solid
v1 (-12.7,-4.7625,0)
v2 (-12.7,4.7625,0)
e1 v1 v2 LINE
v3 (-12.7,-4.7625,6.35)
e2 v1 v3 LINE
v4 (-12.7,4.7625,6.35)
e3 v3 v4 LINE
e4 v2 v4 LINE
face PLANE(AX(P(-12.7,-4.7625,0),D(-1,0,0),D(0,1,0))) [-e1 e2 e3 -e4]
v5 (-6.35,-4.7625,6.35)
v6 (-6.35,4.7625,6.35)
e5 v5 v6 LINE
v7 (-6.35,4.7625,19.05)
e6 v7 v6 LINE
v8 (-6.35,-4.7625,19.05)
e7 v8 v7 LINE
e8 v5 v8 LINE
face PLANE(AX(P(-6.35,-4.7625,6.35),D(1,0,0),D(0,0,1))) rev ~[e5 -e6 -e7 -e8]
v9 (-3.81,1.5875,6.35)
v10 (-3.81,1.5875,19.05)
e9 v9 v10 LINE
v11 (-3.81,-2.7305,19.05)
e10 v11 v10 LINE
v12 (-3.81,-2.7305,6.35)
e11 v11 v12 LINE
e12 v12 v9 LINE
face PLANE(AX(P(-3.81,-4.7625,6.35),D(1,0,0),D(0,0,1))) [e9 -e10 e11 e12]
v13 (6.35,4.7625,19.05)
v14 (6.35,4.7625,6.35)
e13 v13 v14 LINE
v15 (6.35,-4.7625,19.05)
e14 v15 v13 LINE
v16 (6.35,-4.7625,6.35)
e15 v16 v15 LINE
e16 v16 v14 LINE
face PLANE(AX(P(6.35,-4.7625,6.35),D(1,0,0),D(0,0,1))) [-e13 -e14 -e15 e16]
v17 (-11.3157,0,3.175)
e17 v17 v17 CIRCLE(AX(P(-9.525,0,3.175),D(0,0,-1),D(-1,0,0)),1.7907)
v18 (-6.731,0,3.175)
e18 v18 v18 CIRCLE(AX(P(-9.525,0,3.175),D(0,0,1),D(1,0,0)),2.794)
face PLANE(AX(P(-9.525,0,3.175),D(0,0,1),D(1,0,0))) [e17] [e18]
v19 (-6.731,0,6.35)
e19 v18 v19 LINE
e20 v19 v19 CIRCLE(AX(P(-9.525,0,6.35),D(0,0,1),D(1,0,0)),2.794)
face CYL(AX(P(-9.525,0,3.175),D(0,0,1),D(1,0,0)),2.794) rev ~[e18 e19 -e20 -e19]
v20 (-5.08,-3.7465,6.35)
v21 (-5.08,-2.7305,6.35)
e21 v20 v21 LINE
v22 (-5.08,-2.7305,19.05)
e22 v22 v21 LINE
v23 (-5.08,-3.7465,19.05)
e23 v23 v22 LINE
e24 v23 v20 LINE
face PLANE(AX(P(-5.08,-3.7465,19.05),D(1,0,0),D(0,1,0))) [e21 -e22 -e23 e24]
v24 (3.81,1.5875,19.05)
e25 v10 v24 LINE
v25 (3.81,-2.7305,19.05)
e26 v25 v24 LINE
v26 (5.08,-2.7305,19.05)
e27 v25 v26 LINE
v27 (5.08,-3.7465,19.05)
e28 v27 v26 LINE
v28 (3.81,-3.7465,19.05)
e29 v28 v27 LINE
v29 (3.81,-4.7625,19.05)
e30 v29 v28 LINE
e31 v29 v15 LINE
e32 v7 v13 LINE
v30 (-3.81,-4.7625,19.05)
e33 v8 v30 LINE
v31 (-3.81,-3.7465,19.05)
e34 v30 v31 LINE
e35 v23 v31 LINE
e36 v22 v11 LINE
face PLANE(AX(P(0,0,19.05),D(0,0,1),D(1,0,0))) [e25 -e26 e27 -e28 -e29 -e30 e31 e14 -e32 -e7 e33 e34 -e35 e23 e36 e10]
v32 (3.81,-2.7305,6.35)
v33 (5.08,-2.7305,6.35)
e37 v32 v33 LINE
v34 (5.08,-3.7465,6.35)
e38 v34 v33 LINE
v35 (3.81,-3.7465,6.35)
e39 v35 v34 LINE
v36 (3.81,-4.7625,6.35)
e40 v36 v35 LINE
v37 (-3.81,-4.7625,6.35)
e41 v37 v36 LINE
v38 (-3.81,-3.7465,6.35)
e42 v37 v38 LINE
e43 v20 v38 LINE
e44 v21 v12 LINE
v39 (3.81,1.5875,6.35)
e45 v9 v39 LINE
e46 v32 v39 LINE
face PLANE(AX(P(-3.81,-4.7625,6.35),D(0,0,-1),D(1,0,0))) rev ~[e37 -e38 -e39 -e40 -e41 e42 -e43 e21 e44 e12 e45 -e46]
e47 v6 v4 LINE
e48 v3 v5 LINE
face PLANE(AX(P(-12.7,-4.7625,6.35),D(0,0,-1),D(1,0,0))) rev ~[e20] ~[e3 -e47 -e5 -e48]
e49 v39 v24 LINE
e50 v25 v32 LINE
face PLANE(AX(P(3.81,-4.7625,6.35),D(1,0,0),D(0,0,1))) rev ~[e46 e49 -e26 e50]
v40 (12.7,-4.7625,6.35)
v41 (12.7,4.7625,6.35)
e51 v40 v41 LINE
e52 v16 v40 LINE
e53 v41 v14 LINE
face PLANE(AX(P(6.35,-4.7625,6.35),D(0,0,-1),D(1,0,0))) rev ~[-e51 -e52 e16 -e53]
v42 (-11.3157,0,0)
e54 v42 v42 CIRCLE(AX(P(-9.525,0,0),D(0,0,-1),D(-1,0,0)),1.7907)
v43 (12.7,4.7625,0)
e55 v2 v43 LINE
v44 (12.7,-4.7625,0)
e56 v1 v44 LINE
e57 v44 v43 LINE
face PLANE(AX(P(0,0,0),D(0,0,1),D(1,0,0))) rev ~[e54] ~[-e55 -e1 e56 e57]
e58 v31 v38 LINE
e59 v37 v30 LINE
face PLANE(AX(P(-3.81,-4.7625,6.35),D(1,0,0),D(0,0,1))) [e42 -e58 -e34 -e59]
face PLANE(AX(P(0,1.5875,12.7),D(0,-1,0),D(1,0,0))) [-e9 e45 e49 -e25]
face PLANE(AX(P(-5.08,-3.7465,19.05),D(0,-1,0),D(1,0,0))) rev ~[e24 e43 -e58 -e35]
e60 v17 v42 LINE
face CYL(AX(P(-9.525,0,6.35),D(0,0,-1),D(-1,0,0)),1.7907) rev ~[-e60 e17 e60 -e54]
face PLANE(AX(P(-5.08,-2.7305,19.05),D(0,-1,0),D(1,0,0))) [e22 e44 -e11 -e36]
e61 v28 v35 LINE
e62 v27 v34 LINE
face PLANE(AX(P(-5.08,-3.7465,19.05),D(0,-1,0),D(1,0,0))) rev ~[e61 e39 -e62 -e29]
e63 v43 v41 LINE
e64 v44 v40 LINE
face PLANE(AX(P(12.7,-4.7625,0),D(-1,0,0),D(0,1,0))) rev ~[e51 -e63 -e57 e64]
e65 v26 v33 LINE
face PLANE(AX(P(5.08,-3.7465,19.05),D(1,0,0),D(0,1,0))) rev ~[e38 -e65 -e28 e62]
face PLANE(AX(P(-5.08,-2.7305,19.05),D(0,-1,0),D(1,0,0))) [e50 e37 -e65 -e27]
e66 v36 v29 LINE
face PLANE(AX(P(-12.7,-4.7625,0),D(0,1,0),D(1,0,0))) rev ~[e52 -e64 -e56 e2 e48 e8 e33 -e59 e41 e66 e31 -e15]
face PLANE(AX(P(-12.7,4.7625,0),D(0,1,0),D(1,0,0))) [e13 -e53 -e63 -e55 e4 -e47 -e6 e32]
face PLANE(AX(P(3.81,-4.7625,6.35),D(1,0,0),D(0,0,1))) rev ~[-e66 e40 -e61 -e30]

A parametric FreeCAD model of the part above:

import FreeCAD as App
import Part
import Sketcher
Q = App.Units.Quantity

doc = App.newDocument("Part")
params = doc.addObject("Spreadsheet::Sheet", "Params")
for row, (alias, value) in enumerate([
    ("sketch1_width", "1 in"),
    ("sketch1_height", "0.375 in"),
    ("pad1_length", "0.75 in"),
    ("sketch2_height", "0.5 in"),
    ("sketch2_width", "0.25 in"),
    ("pocket1_length", "1 in"),
    ("sketch3_diameter", "0.141 in"),
    ("hole_diameter", "0.141 in"),
    ("hole_depth", "0.265 in"),
    ("hole_cbore_diameter", "0.22 in"),
    ("hole_cbore_depth", "0.125 in"),
    ("sketch4_width", "0.3 in"),
    ("sketch4_height", "0.5 in"),
    ("pocket2_length", "0.25 in"),
    ("sketch5_width", "0.4 in"),
    ("sketch5_height", "0.04 in"),
    ("pocket3_length", "0.5 in"),
], start=1):
    params.set(f"A{row}", alias)
    params.set(f"B{row}", "=" + value)
    params.setAlias(f"B{row}", alias)

body = doc.addObject("PartDesign::Body", "Body")

sketch1 = body.newObject("Sketcher::SketchObject", "Sketch")
sketch1.AttachmentSupport = (doc.getObject("XY_Plane"), [""])
sketch1.MapMode = "FlatFace"
sketch1.addGeometry(Part.LineSegment(App.Vector(-13, 5, 0), App.Vector(-13, -5, 0)), False)
sketch1.addGeometry(Part.LineSegment(App.Vector(-13, -5, 0), App.Vector(13, -5, 0)), False)
sketch1.addGeometry(Part.LineSegment(App.Vector(13, -5, 0), App.Vector(13, 5, 0)), False)
sketch1.addGeometry(Part.LineSegment(App.Vector(13, 5, 0), App.Vector(-13, 5, 0)), False)
sketch1.addConstraint(Sketcher.Constraint("Coincident", 0, 2, 1, 1))
sketch1.addConstraint(Sketcher.Constraint("Coincident", 1, 2, 2, 1))
sketch1.addConstraint(Sketcher.Constraint("Coincident", 2, 2, 3, 1))
sketch1.addConstraint(Sketcher.Constraint("Coincident", 3, 2, 0, 1))
sketch1.addConstraint(Sketcher.Constraint("Vertical", 0))
sketch1.addConstraint(Sketcher.Constraint("Horizontal", 1))
sketch1.addConstraint(Sketcher.Constraint("Vertical", 2))
sketch1.addConstraint(Sketcher.Constraint("Horizontal", 3))
sketch1.addConstraint(Sketcher.Constraint("Symmetric", 0, 2, 2, 2, -1, 1))
sketch1.addConstraint(Sketcher.Constraint("DistanceX", 1, 1, 1, 2, Q("1 in")))
sketch1.addConstraint(Sketcher.Constraint("DistanceY", 0, 2, 0, 1, Q("0.375 in")))
sketch1.setExpression("Constraints[9]", "Params.sketch1_width")
sketch1.setExpression("Constraints[10]", "Params.sketch1_height")
pad1 = body.newObject("PartDesign::Pad", "Pad")
pad1.Profile = sketch1
pad1.setExpression("Length", "Params.pad1_length")

sketch2 = body.newObject("Sketcher::SketchObject", "Sketch001")
sketch2.AttachmentSupport = (doc.getObject("XZ_Plane"), [""])
sketch2.MapMode = "FlatFace"
sketch2.AttachmentOffset = App.Placement(App.Vector(0, 0, 0.1875 * 25.4), App.Rotation())
sketch2.addGeometry(Part.LineSegment(App.Vector(-13, 19, 0), App.Vector(-13, 6, 0)), False)
sketch2.addGeometry(Part.LineSegment(App.Vector(-13, 6, 0), App.Vector(-6, 6, 0)), False)
sketch2.addGeometry(Part.LineSegment(App.Vector(-6, 6, 0), App.Vector(-6, 19, 0)), False)
sketch2.addGeometry(Part.LineSegment(App.Vector(-6, 19, 0), App.Vector(-13, 19, 0)), False)
sketch2.addGeometry(Part.LineSegment(App.Vector(6, 19, 0), App.Vector(6, 6, 0)), False)
sketch2.addGeometry(Part.LineSegment(App.Vector(6, 6, 0), App.Vector(13, 6, 0)), False)
sketch2.addGeometry(Part.LineSegment(App.Vector(13, 6, 0), App.Vector(13, 19, 0)), False)
sketch2.addGeometry(Part.LineSegment(App.Vector(13, 19, 0), App.Vector(6, 19, 0)), False)
sketch2.addConstraint(Sketcher.Constraint("Coincident", 0, 2, 1, 1))
sketch2.addConstraint(Sketcher.Constraint("Coincident", 1, 2, 2, 1))
sketch2.addConstraint(Sketcher.Constraint("Coincident", 2, 2, 3, 1))
sketch2.addConstraint(Sketcher.Constraint("Coincident", 3, 2, 0, 1))
sketch2.addConstraint(Sketcher.Constraint("Coincident", 4, 2, 5, 1))
sketch2.addConstraint(Sketcher.Constraint("Coincident", 5, 2, 6, 1))
sketch2.addConstraint(Sketcher.Constraint("Coincident", 6, 2, 7, 1))
sketch2.addConstraint(Sketcher.Constraint("Coincident", 7, 2, 4, 1))
sketch2.addConstraint(Sketcher.Constraint("Vertical", 0))
sketch2.addConstraint(Sketcher.Constraint("Horizontal", 1))
sketch2.addConstraint(Sketcher.Constraint("Vertical", 2))
sketch2.addConstraint(Sketcher.Constraint("Horizontal", 3))
sketch2.addConstraint(Sketcher.Constraint("Vertical", 4))
sketch2.addConstraint(Sketcher.Constraint("Horizontal", 5))
sketch2.addConstraint(Sketcher.Constraint("Vertical", 6))
sketch2.addConstraint(Sketcher.Constraint("Horizontal", 7))
sketch2.addConstraint(Sketcher.Constraint("Symmetric", 1, 2, 4, 2, -2))
sketch2.addConstraint(Sketcher.Constraint("Symmetric", 3, 2, 6, 2, -2))
sketch2.addConstraint(Sketcher.Constraint("DistanceY", 0, 2, 0, 1, Q("0.5 in")))
sketch2.addConstraint(Sketcher.Constraint("DistanceX", 0, 2, 5, 2, Q("1 in")))
sketch2.addConstraint(Sketcher.Constraint("DistanceX", 1, 1, 1, 2, Q("0.25 in")))
sketch2.addConstraint(Sketcher.Constraint("DistanceY", -1, 1, 0, 2, Q("0.25 in")))
sketch2.setExpression("Constraints[18]", "Params.sketch2_height")
sketch2.setExpression("Constraints[20]", "Params.sketch2_width")
pocket1 = body.newObject("PartDesign::Pocket", "Pocket")
pocket1.Profile = sketch2
pocket1.setExpression("Length", "Params.pocket1_length")

sketch3 = body.newObject("Sketcher::SketchObject", "Sketch002")
sketch3.AttachmentSupport = (doc.getObject("XY_Plane"), [""])
sketch3.MapMode = "FlatFace"
sketch3.AttachmentOffset = App.Placement(App.Vector(0, 0, 0.25 * 25.4), App.Rotation())
sketch3.addGeometry(Part.Circle(App.Vector(-9.5, 0, 0), App.Vector(0, 0, 1), 1.8), False)
sketch3.addConstraint(Sketcher.Constraint("PointOnObject", 0, 3, -1))
sketch3.addConstraint(Sketcher.Constraint("Diameter", 0, Q("0.141 in")))
sketch3.addConstraint(Sketcher.Constraint("DistanceX", 0, 3, -1, 1, Q("0.375 in")))
sketch3.setExpression("Constraints[1]", "Params.sketch3_diameter")
doc.recompute()
hole = body.newObject("PartDesign::Hole", "Hole")
hole.Profile = sketch3
hole.ThreadType = "None"
hole.setExpression("Diameter", "Params.hole_diameter")
hole.DepthType = "Dimension"
hole.setExpression("Depth", "Params.hole_depth")
hole.DrillPoint = "Flat"
hole.HoleCutType = "Counterbore"
hole.setExpression("HoleCutDiameter", "Params.hole_cbore_diameter")
hole.setExpression("HoleCutDepth", "Params.hole_cbore_depth")

sketch4 = body.newObject("Sketcher::SketchObject", "Sketch003")
sketch4.AttachmentSupport = (doc.getObject("XZ_Plane"), [""])
sketch4.MapMode = "FlatFace"
sketch4.AttachmentOffset = App.Placement(App.Vector(0, 0, 0.1875 * 25.4), App.Rotation())
sketch4.addGeometry(Part.LineSegment(App.Vector(-4, 19, 0), App.Vector(-4, 6, 0)), False)
sketch4.addGeometry(Part.LineSegment(App.Vector(-4, 6, 0), App.Vector(4, 6, 0)), False)
sketch4.addGeometry(Part.LineSegment(App.Vector(4, 6, 0), App.Vector(4, 19, 0)), False)
sketch4.addGeometry(Part.LineSegment(App.Vector(4, 19, 0), App.Vector(-4, 19, 0)), False)
sketch4.addConstraint(Sketcher.Constraint("Coincident", 0, 2, 1, 1))
sketch4.addConstraint(Sketcher.Constraint("Coincident", 1, 2, 2, 1))
sketch4.addConstraint(Sketcher.Constraint("Coincident", 2, 2, 3, 1))
sketch4.addConstraint(Sketcher.Constraint("Coincident", 3, 2, 0, 1))
sketch4.addConstraint(Sketcher.Constraint("Vertical", 0))
sketch4.addConstraint(Sketcher.Constraint("Horizontal", 1))
sketch4.addConstraint(Sketcher.Constraint("Vertical", 2))
sketch4.addConstraint(Sketcher.Constraint("Horizontal", 3))
sketch4.addConstraint(Sketcher.Constraint("DistanceX", 1, 1, 1, 2, Q("0.3 in")))
sketch4.addConstraint(Sketcher.Constraint("DistanceY", 0, 2, 0, 1, Q("0.5 in")))
sketch4.addConstraint(Sketcher.Constraint("DistanceX", 0, 2, -1, 1, Q("0.15 in")))
sketch4.addConstraint(Sketcher.Constraint("DistanceY", -1, 1, 0, 2, Q("0.25 in")))
sketch4.setExpression("Constraints[8]", "Params.sketch4_width")
sketch4.setExpression("Constraints[9]", "Params.sketch4_height")
pocket2 = body.newObject("PartDesign::Pocket", "Pocket001")
pocket2.Profile = sketch4
pocket2.setExpression("Length", "Params.pocket2_length")

sketch5 = body.newObject("Sketcher::SketchObject", "Sketch004")
sketch5.AttachmentSupport = (doc.getObject("XY_Plane"), [""])
sketch5.MapMode = "FlatFace"
sketch5.AttachmentOffset = App.Placement(App.Vector(0, 0, 0.75 * 25.4), App.Rotation())
sketch5.addGeometry(Part.LineSegment(App.Vector(-5.1, -2.7, 0), App.Vector(-5.1, -3.7, 0)), False)
sketch5.addGeometry(Part.LineSegment(App.Vector(-5.1, -3.7, 0), App.Vector(5.1, -3.7, 0)), False)
sketch5.addGeometry(Part.LineSegment(App.Vector(5.1, -3.7, 0), App.Vector(5.1, -2.7, 0)), False)
sketch5.addGeometry(Part.LineSegment(App.Vector(5.1, -2.7, 0), App.Vector(-5.1, -2.7, 0)), False)
sketch5.addConstraint(Sketcher.Constraint("Coincident", 0, 2, 1, 1))
sketch5.addConstraint(Sketcher.Constraint("Coincident", 1, 2, 2, 1))
sketch5.addConstraint(Sketcher.Constraint("Coincident", 2, 2, 3, 1))
sketch5.addConstraint(Sketcher.Constraint("Coincident", 3, 2, 0, 1))
sketch5.addConstraint(Sketcher.Constraint("Vertical", 0))
sketch5.addConstraint(Sketcher.Constraint("Horizontal", 1))
sketch5.addConstraint(Sketcher.Constraint("Vertical", 2))
sketch5.addConstraint(Sketcher.Constraint("Horizontal", 3))
sketch5.addConstraint(Sketcher.Constraint("DistanceX", 1, 1, 1, 2, Q("0.4 in")))
sketch5.addConstraint(Sketcher.Constraint("DistanceY", 0, 2, 0, 1, Q("0.04 in")))
sketch5.addConstraint(Sketcher.Constraint("DistanceX", 0, 2, -1, 1, Q("0.2 in")))
sketch5.addConstraint(Sketcher.Constraint("DistanceY", 0, 2, -1, 1, Q("0.1475 in")))
sketch5.setExpression("Constraints[8]", "Params.sketch5_width")
sketch5.setExpression("Constraints[9]", "Params.sketch5_height")
pocket3 = body.newObject("PartDesign::Pocket", "Pocket002")
pocket3.Profile = sketch5
pocket3.setExpression("Length", "Params.pocket3_length")

doc.recompute()
